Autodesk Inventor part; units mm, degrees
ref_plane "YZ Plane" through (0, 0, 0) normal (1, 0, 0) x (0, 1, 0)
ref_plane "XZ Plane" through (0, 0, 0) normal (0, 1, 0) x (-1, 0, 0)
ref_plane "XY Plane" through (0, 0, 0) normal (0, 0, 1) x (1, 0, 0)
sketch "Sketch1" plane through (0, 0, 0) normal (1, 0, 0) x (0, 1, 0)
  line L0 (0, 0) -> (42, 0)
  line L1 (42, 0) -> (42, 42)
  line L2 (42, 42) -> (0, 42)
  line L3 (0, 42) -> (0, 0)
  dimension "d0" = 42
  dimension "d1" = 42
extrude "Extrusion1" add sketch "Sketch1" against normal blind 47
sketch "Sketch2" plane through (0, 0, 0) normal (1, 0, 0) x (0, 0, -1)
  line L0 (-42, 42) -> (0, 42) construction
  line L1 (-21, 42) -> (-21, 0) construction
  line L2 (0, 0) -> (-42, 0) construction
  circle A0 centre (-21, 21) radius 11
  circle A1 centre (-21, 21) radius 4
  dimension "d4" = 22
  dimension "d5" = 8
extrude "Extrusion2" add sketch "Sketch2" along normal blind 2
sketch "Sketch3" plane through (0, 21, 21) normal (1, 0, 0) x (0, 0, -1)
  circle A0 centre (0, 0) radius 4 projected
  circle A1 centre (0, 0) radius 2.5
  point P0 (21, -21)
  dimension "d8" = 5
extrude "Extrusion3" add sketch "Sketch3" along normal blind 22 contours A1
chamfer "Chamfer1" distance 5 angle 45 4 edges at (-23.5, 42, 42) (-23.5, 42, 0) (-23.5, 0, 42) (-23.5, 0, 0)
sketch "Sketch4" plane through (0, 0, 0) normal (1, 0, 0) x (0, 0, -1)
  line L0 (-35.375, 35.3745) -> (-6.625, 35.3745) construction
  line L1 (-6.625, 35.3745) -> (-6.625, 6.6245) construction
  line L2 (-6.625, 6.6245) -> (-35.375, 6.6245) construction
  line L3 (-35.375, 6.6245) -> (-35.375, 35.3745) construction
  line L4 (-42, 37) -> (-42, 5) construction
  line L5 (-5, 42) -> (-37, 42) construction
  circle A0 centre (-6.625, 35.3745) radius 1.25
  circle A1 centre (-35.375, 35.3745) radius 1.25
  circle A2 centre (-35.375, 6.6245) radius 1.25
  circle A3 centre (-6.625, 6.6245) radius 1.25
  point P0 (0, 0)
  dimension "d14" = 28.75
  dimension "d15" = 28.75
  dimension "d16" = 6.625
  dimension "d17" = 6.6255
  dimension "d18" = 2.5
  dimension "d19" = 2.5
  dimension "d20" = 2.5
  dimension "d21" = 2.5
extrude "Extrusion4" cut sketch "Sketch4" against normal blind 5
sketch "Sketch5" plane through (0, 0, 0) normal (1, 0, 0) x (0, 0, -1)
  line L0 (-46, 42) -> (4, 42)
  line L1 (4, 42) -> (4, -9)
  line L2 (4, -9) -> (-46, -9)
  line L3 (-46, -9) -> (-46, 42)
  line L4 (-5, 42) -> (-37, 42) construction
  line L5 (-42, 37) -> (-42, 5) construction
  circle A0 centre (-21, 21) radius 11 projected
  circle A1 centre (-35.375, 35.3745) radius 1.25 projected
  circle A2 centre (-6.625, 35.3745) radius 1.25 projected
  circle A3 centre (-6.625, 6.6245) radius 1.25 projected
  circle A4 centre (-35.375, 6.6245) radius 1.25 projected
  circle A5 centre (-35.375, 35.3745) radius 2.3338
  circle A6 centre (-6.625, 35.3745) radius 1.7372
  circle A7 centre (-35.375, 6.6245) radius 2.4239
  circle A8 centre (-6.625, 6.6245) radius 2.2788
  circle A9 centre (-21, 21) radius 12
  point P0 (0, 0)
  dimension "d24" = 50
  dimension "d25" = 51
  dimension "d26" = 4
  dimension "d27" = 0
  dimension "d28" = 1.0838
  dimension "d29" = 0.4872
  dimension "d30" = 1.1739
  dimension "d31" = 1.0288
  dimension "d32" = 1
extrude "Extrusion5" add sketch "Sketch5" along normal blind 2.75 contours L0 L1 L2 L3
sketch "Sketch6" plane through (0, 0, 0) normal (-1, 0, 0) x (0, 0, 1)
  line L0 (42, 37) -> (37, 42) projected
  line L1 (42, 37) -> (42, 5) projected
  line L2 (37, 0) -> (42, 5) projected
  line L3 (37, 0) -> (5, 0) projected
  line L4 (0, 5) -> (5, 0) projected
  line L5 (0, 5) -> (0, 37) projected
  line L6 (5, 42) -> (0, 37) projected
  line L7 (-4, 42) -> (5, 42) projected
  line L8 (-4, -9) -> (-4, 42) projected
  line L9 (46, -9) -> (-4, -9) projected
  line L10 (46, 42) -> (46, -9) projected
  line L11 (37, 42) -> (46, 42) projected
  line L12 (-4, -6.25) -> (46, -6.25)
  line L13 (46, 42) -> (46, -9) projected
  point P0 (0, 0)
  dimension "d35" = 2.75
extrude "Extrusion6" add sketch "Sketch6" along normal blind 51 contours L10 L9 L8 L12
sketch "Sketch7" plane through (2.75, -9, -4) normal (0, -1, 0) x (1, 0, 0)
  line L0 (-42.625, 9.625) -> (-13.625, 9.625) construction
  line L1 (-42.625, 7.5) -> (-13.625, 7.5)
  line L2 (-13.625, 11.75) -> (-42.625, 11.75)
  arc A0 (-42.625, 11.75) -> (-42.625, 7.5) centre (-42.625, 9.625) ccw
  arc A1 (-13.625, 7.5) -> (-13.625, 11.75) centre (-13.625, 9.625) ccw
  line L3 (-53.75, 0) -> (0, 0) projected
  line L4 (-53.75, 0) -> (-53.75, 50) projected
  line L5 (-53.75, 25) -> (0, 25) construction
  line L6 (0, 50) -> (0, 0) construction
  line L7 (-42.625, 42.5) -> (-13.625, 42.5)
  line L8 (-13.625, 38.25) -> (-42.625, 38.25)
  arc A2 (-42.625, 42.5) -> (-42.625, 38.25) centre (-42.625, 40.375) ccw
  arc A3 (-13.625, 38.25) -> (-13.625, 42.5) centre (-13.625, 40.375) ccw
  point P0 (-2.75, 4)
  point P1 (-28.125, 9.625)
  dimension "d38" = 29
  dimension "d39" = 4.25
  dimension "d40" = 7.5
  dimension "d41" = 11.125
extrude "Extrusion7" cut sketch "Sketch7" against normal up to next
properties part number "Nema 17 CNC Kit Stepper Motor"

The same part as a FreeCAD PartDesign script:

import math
import FreeCAD as App
import Part
import Sketcher
from FreeCAD import Vector


def edges_at(feature, points):
    """Names of the edges that pass closest to the given points."""
    edges = feature.Shape.Edges
    near = lambda p: min(range(len(edges)), key=lambda i: edges[i].distToShape(Part.Vertex(*p))[0])
    return sorted({f"Edge{near(p) + 1}" for p in points})


def add_polygon(sketch, points):
    """Adds a closed chain of lines whose ends are joined by coincident constraints."""
    first, n = sketch.GeometryCount, len(points)
    for a, b in zip(points, points[1:] + points[:1]):
        sketch.addGeometry(Part.LineSegment(App.Vector(*a, 0), App.Vector(*b, 0)), False)
    for i in range(n):
        sketch.addConstraint(Sketcher.Constraint("Coincident", first + i, 2, first + (i + 1) % n, 1))

doc = App.newDocument("Part")
body = doc.addObject("PartDesign::Body", "Body")

sketch1 = body.newObject("Sketcher::SketchObject", "Sketch")
sketch1.AttachmentSupport = (doc.getObject("YZ_Plane"), [""])
sketch1.MapMode = "FlatFace"
add_polygon(sketch1, [(0, 42), (0, 0), (42, 0), (42, 42)])
sketch1.addConstraint([
    Sketcher.Constraint("Vertical", 0),
    Sketcher.Constraint("Horizontal", 1),
    Sketcher.Constraint("Vertical", 2),
    Sketcher.Constraint("Horizontal", 3),
    Sketcher.Constraint("Coincident", 0, 2, -1, 1),
    Sketcher.Constraint("Equal", 3, 0),
    Sketcher.Constraint("DistanceX", 1, 1, 1, 2, 42.0),
])
pad1 = body.newObject("PartDesign::Pad", "Pad")
pad1.Profile = sketch1
pad1.Length = 47
pad1.Reversed = True

sketch2 = body.newObject("Sketcher::SketchObject", "Sketch001")
sketch2.AttachmentSupport = (doc.getObject("YZ_Plane"), [""])
sketch2.MapMode = "FlatFace"
sketch2.addGeometry([
    Part.Circle(Vector(21, 21, 0), Vector(0, 0, 1), 11),
    Part.Circle(Vector(21, 21, 0), Vector(0, 0, 1), 4),
], False)
sketch2.addConstraint([
    Sketcher.Constraint("Coincident", 1, 3, 0, 3),
    Sketcher.Constraint("Diameter", 0, 22.0),
    Sketcher.Constraint("Diameter", 1, 8.0),
    Sketcher.Constraint("DistanceX", -1, 1, 0, 3, 21.0),
    Sketcher.Constraint("DistanceY", -1, 1, 0, 3, 21.0),
])
pad2 = body.newObject("PartDesign::Pad", "Pad001")
pad2.Profile = sketch2
pad2.Length = 2

sketch3 = body.newObject("Sketcher::SketchObject", "Sketch002")
sketch3.AttachmentSupport = (doc.getObject("YZ_Plane"), [""])
sketch3.MapMode = "FlatFace"
sketch3.addGeometry(Part.Circle(Vector(21, 21, 0), Vector(0, 0, 1), 2.5), False)
sketch3.addConstraint([
    Sketcher.Constraint("Diameter", 0, 5.0),
    Sketcher.Constraint("DistanceX", -1, 1, 0, 3, 21.0),
    Sketcher.Constraint("DistanceY", -1, 1, 0, 3, 21.0),
])
pad3 = body.newObject("PartDesign::Pad", "Pad002")
pad3.Profile = sketch3
pad3.Length = 22
doc.recompute()

chamfer = body.newObject("PartDesign::Chamfer", "Chamfer")
chamfer.Base = (pad3, edges_at(pad3, [
    (-23.5, 42, 42),
    (-23.5, 42, 0),
    (-23.5, 0, 42),
    (-23.5, 0, 0),
]))
chamfer.Size = 5

sketch4 = body.newObject("Sketcher::SketchObject", "Sketch003")
sketch4.AttachmentSupport = (doc.getObject("YZ_Plane"), [""])
sketch4.MapMode = "FlatFace"
sketch4.addGeometry([
    Part.Circle(Vector(35.3745, 6.625, 0), Vector(0, 0, 1), 1.25),
    Part.Circle(Vector(35.3745, 35.375, 0), Vector(0, 0, 1), 1.25),
    Part.Circle(Vector(6.6245, 35.375, 0), Vector(0, 0, 1), 1.25),
    Part.Circle(Vector(6.6245, 6.625, 0), Vector(0, 0, 1), 1.25),
], False)
sketch4.addConstraint([
    Sketcher.Constraint("Equal", 0, 1),
    Sketcher.Constraint("Equal", 1, 2),
    Sketcher.Constraint("Equal", 2, 3),
    Sketcher.Constraint("Horizontal", 1, 3, 2, 3),
    Sketcher.Constraint("Horizontal", 0, 3, 3, 3),
    Sketcher.Constraint("Vertical", 0, 3, 1, 3),
    Sketcher.Constraint("Vertical", 2, 3, 3, 3),
    Sketcher.Constraint("Diameter", 0, 2.5),
    Sketcher.Constraint("DistanceY", 0, 3, 1, 3, 28.75),
    Sketcher.Constraint("DistanceX", 2, 3, 1, 3, 28.75),
    Sketcher.Constraint("DistanceY", -1, 1, 0, 3, 6.625),
    Sketcher.Constraint("DistanceX", -1, 1, 2, 3, 6.6245),
])
pocket1 = body.newObject("PartDesign::Pocket", "Pocket")
pocket1.Profile = sketch4
pocket1.Length = 5

sketch5 = body.newObject("Sketcher::SketchObject", "Sketch004")
sketch5.AttachmentSupport = (doc.getObject("YZ_Plane"), [""])
sketch5.MapMode = "FlatFace"
add_polygon(sketch5, [(42, -4), (42, 46), (-9, 46), (-9, -4)])
sketch5.addGeometry(Part.Circle(Vector(6.6245, 35.375, 0), Vector(0, 0, 1), 2.4239), False)
sketch5.addGeometry(Part.Circle(Vector(6.6245, 6.625, 0), Vector(0, 0, 1), 2.2788), False)
sketch5.addGeometry(Part.Circle(Vector(35.3745, 35.375, 0), Vector(0, 0, 1), 2.3338), False)
sketch5.addGeometry(Part.Circle(Vector(21, 21, 0), Vector(0, 0, 1), 12), False)
sketch5.addGeometry(Part.Circle(Vector(35.3745, 6.625, 0), Vector(0, 0, 1), 1.7372), False)
sketch5.addConstraint([
    Sketcher.Constraint("Vertical", 0),
    Sketcher.Constraint("Horizontal", 1),
    Sketcher.Constraint("Vertical", 2),
    Sketcher.Constraint("Horizontal", 3),
    Sketcher.Constraint("Horizontal", 4, 3, 6, 3),
    Sketcher.Constraint("Horizontal", 5, 3, 8, 3),
    Sketcher.Constraint("Vertical", 4, 3, 5, 3),
    Sketcher.Constraint("Vertical", 6, 3, 8, 3),
    Sketcher.Constraint("DistanceX", 1, 2, 1, 1, 51.0),
    Sketcher.Constraint("DistanceY", 0, 1, 0, 2, 50.0),
    Sketcher.Constraint("Diameter", 7, 24.0),
    Sketcher.Constraint("DistanceY", 2, 2, -1, 1, 4.0),
    Sketcher.Constraint("DistanceX", -1, 1, 7, 3, 21.0),
    Sketcher.Constraint("DistanceY", -1, 1, 7, 3, 21.0),
    Sketcher.Constraint("DistanceX", -1, 1, 0, 2, 42.0),
    Sketcher.Constraint("Diameter", 4, 4.8478),
    Sketcher.Constraint("Diameter", 5, 4.5576),
    Sketcher.Constraint("Diameter", 6, 4.6676),
    Sketcher.Constraint("Diameter", 8, 3.4744),
    Sketcher.Constraint("DistanceY", 5, 3, 4, 3, 28.75),
    Sketcher.Constraint("DistanceX", 4, 3, 6, 3, 28.75),
    Sketcher.Constraint("DistanceY", -1, 1, 4, 3, 35.375),
    Sketcher.Constraint("DistanceX", -1, 1, 4, 3, 6.6245),
])
pad4 = body.newObject("PartDesign::Pad", "Pad003")
pad4.Profile = sketch5
pad4.Length = 2.75

sketch6 = body.newObject("Sketcher::SketchObject", "Sketch005")
sketch6.AttachmentSupport = (doc.getObject("YZ_Plane"), [""])
sketch6.MapMode = "FlatFace"
add_polygon(sketch6, [(-9, 46), (-6.25, 46), (-6.25, -4), (-9, -4)])
sketch6.addConstraint([
    Sketcher.Constraint("Horizontal", 0),
    Sketcher.Constraint("Vertical", 1),
    Sketcher.Constraint("Horizontal", 2),
    Sketcher.Constraint("Vertical", 3),
    Sketcher.Constraint("DistanceX", 0, 1, 0, 2, 2.75),
    Sketcher.Constraint("DistanceY", 1, 2, 1, 1, 50.0),
    Sketcher.Constraint("DistanceY", -1, 1, 0, 2, 46.0),
    Sketcher.Constraint("DistanceX", 2, 2, -1, 1, 9.0),
])
pad5 = body.newObject("PartDesign::Pad", "Pad004")
pad5.Profile = sketch6
pad5.Length = 51
pad5.Reversed = True

sketch7 = body.newObject("Sketcher::SketchObject", "Sketch006")
sketch7.AttachmentSupport = (doc.getObject("XZ_Plane"), [""])
sketch7.MapMode = "FlatFace"
sketch7.AttachmentOffset = App.Placement(Vector(0, 0, 9), App.Rotation())
sketch7.addGeometry([
    Part.ArcOfCircle(Part.Circle(Vector(-39.875, 5.625, 0), Vector(0, 0, 1), 2.125), math.radians(90), math.radians(270)),
    Part.LineSegment(Vector(-39.875, 3.5, 0), Vector(-10.875, 3.5, 0)),
    Part.ArcOfCircle(Part.Circle(Vector(-10.875, 5.625, 0), Vector(0, 0, 1), 2.125), math.radians(-90), math.radians(90)),
    Part.LineSegment(Vector(-10.875, 7.75, 0), Vector(-39.875, 7.75, 0)),
    Part.LineSegment(Vector(-10.875, 38.5, 0), Vector(-39.875, 38.5, 0)),
    Part.ArcOfCircle(Part.Circle(Vector(-39.875, 36.375, 0), Vector(0, 0, 1), 2.125), math.radians(90), math.radians(270)),
    Part.LineSegment(Vector(-39.875, 34.25, 0), Vector(-10.875, 34.25, 0)),
    Part.ArcOfCircle(Part.Circle(Vector(-10.875, 36.375, 0), Vector(0, 0, 1), 2.125), math.radians(-90), math.radians(90)),
], False)
sketch7.addConstraint([
    Sketcher.Constraint("Tangent", 0, 2, 1, 1),
    Sketcher.Constraint("Tangent", 1, 2, 2, 1),
    Sketcher.Constraint("Tangent", 2, 2, 3, 1),
    Sketcher.Constraint("Tangent", 3, 2, 0, 1),
    Sketcher.Constraint("Tangent", 4, 2, 5, 1),
    Sketcher.Constraint("Tangent", 5, 2, 6, 1),
    Sketcher.Constraint("Tangent", 6, 2, 7, 1),
    Sketcher.Constraint("Tangent", 7, 2, 4, 1),
    Sketcher.Constraint("Horizontal", 1),
    Sketcher.Constraint("Horizontal", 3),
    Sketcher.Constraint("Horizontal", 4),
    Sketcher.Constraint("Horizontal", 6),
    Sketcher.Constraint("Equal", 2, 5),
    Sketcher.Constraint("Vertical", 0, 3, 5, 3),
    Sketcher.Constraint("Vertical", 2, 3, 7, 3),
    Sketcher.Constraint("DistanceX", 1, 1, 1, 2, 29.0),
    Sketcher.Constraint("Radius", 0, 2.125),
    Sketcher.Constraint("DistanceY", 0, 2, 4, 2, 35.0),
    Sketcher.Constraint("DistanceY", -1, 1, 0, 2, 3.5),
    Sketcher.Constraint("DistanceX", 0, 3, -1, 1, 39.875),
])
pocket2 = body.newObject("PartDesign::Pocket", "Pocket001")
pocket2.Profile = sketch7
pocket2.Type = "UpToFirst"

doc.recompute()
